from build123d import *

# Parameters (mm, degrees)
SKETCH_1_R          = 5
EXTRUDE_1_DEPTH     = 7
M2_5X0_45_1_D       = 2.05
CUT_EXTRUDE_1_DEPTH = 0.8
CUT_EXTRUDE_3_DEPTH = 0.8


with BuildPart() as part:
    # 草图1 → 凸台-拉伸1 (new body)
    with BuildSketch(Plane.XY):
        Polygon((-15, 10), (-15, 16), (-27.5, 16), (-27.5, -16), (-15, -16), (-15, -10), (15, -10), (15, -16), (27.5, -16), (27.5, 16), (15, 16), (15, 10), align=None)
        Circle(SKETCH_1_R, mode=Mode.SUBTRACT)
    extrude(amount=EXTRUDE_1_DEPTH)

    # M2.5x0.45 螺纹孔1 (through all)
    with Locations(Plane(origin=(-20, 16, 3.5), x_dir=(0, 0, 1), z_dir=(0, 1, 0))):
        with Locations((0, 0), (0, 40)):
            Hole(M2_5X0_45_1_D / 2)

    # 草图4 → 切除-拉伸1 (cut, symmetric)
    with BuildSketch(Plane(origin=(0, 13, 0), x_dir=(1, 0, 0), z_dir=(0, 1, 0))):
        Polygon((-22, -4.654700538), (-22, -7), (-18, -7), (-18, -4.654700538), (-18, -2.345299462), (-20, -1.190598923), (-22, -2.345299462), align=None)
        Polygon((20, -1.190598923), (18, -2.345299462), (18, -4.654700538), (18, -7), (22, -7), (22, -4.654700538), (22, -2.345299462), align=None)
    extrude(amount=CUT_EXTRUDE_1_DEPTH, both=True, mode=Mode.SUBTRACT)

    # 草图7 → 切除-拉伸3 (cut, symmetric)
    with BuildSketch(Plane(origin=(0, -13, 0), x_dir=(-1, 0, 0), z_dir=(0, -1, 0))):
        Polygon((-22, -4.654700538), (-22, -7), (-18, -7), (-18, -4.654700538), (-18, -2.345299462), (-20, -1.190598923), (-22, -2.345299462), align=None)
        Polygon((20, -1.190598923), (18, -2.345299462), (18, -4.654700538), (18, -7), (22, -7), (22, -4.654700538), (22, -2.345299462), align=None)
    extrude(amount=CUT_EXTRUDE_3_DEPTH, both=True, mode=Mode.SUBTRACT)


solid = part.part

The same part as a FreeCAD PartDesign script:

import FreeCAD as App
import Part
import Sketcher
Q = App.Units.Quantity

doc = App.newDocument("Part")
body = doc.addObject("PartDesign::Body", "Body")

sketch1 = doc.addObject("Sketcher::SketchObject", "Sketch")
body.addObject(sketch1)
sketch1.AttachmentSupport = (doc.XY_Plane, [""])
sketch1.MapMode = "FlatFace"
sketch1.addGeometry(Part.LineSegment(App.Vector(-15, 10, 0), App.Vector(-15, 16, 0)), False)
sketch1.addGeometry(Part.LineSegment(App.Vector(-15, 16, 0), App.Vector(-27.5, 16, 0)), False)
sketch1.addGeometry(Part.LineSegment(App.Vector(-27.5, 16, 0), App.Vector(-27.5, -16, 0)), False)
sketch1.addGeometry(Part.LineSegment(App.Vector(-27.5, -16, 0), App.Vector(-15, -16, 0)), False)
sketch1.addGeometry(Part.LineSegment(App.Vector(-15, -16, 0), App.Vector(-15, -10, 0)), False)
sketch1.addGeometry(Part.LineSegment(App.Vector(-15, -10, 0), App.Vector(15, -10, 0)), False)
sketch1.addGeometry(Part.LineSegment(App.Vector(15, -10, 0), App.Vector(15, -16, 0)), False)
sketch1.addGeometry(Part.LineSegment(App.Vector(15, -16, 0), App.Vector(27.5, -16, 0)), False)
sketch1.addGeometry(Part.LineSegment(App.Vector(27.5, -16, 0), App.Vector(27.5, 16, 0)), False)
sketch1.addGeometry(Part.LineSegment(App.Vector(27.5, 16, 0), App.Vector(15, 16, 0)), False)
sketch1.addGeometry(Part.LineSegment(App.Vector(15, 16, 0), App.Vector(15, 10, 0)), False)
sketch1.addGeometry(Part.LineSegment(App.Vector(15, 10, 0), App.Vector(-15, 10, 0)), False)
sketch1.addGeometry(Part.Circle(App.Vector(0, 0, 0), App.Vector(0, 0, 1), 5), False)
sketch1.addConstraint(Sketcher.Constraint("Coincident", 0, 2, 1, 1))
sketch1.addConstraint(Sketcher.Constraint("Coincident", 1, 2, 2, 1))
sketch1.addConstraint(Sketcher.Constraint("Coincident", 2, 2, 3, 1))
sketch1.addConstraint(Sketcher.Constraint("Coincident", 3, 2, 4, 1))
sketch1.addConstraint(Sketcher.Constraint("Coincident", 4, 2, 5, 1))
sketch1.addConstraint(Sketcher.Constraint("Coincident", 5, 2, 6, 1))
sketch1.addConstraint(Sketcher.Constraint("Coincident", 6, 2, 7, 1))
sketch1.addConstraint(Sketcher.Constraint("Coincident", 7, 2, 8, 1))
sketch1.addConstraint(Sketcher.Constraint("Coincident", 8, 2, 9, 1))
sketch1.addConstraint(Sketcher.Constraint("Coincident", 9, 2, 10, 1))
sketch1.addConstraint(Sketcher.Constraint("Coincident", 10, 2, 11, 1))
sketch1.addConstraint(Sketcher.Constraint("Coincident", 11, 2, 0, 1))
sketch1.addConstraint(Sketcher.Constraint("Vertical", 0))
sketch1.addConstraint(Sketcher.Constraint("Horizontal", 1))
sketch1.addConstraint(Sketcher.Constraint("Vertical", 2))
sketch1.addConstraint(Sketcher.Constraint("Horizontal", 3))
sketch1.addConstraint(Sketcher.Constraint("Vertical", 4))
sketch1.addConstraint(Sketcher.Constraint("Horizontal", 5))
sketch1.addConstraint(Sketcher.Constraint("Vertical", 6))
sketch1.addConstraint(Sketcher.Constraint("Horizontal", 7))
sketch1.addConstraint(Sketcher.Constraint("Vertical", 8))
sketch1.addConstraint(Sketcher.Constraint("Horizontal", 9))
sketch1.addConstraint(Sketcher.Constraint("Vertical", 10))
sketch1.addConstraint(Sketcher.Constraint("Horizontal", 11))
sketch1.addConstraint(Sketcher.Constraint("Coincident", 12, 3, -1, 1))
sketch1.addConstraint(Sketcher.Constraint("Symmetric", 0, 2, 6, 2, -1, 1))
sketch1.addConstraint(Sketcher.Constraint("Symmetric", 2, 2, 8, 2, -1, 1))
sketch1.addConstraint(Sketcher.Constraint("Symmetric", 4, 2, 10, 2, -1, 1))
sketch1.addConstraint(Sketcher.Constraint("Symmetric", 3, 2, 6, 2, -2))
sketch1.addConstraint(Sketcher.Constraint("Diameter", 12, Q("10 mm")))
sketch1.addConstraint(Sketcher.Constraint("DistanceX", 5, 1, 5, 2, Q("30 mm")))
sketch1.addConstraint(Sketcher.Constraint("DistanceY", 0, 1, 0, 2, Q("6 mm")))
sketch1.addConstraint(Sketcher.Constraint("DistanceY", 2, 2, 2, 1, Q("32 mm")))
sketch1.addConstraint(Sketcher.Constraint("DistanceX", 1, 2, 1, 1, Q("12.5 mm")))
pad1 = doc.addObject("PartDesign::Pad", "Pad")
body.addObject(pad1)
pad1.Profile = sketch1
pad1.Length = 7

sketch2 = doc.addObject("Sketcher::SketchObject", "Sketch001")
body.addObject(sketch2)
sketch2.AttachmentSupport = (doc.XZ_Plane, [""])
sketch2.MapMode = "FlatFace"
sketch2.AttachmentOffset = App.Placement(App.Vector(0, 0, -16), App.Rotation())
sketch2.addGeometry(Part.Circle(App.Vector(-20, 3.5, 0), App.Vector(0, 0, 1), 1.025), False)
sketch2.addGeometry(Part.Circle(App.Vector(20, 3.5, 0), App.Vector(0, 0, 1), 1.025), False)
sketch2.addConstraint(Sketcher.Constraint("Equal", 0, 1))
sketch2.addConstraint(Sketcher.Constraint("Symmetric", 0, 3, 1, 3, -2))
sketch2.addConstraint(Sketcher.Constraint("Diameter", 0, Q("2.05 mm")))
sketch2.addConstraint(Sketcher.Constraint("DistanceX", 0, 3, -1, 1, Q("20 mm")))
sketch2.addConstraint(Sketcher.Constraint("DistanceY", -1, 1, 0, 3, Q("3.5 mm")))
doc.recompute()
hole = doc.addObject("PartDesign::Hole", "Hole")
body.addObject(hole)
hole.Profile = sketch2
hole.ThreadType = "None"
hole.Diameter = 2.05
hole.DepthType = "ThroughAll"
hole.Reversed = True

sketch3 = doc.addObject("Sketcher::SketchObject", "Sketch002")
body.addObject(sketch3)
sketch3.AttachmentSupport = (doc.XZ_Plane, [""])
sketch3.MapMode = "FlatFace"
sketch3.AttachmentOffset = App.Placement(App.Vector(0, 0, -13), App.Rotation())
sketch3.addGeometry(Part.LineSegment(App.Vector(-22, 7, 0), App.Vector(-18, 7, 0)), False)
sketch3.addGeometry(Part.LineSegment(App.Vector(-18, 7, 0), App.Vector(-18, 2.345299, 0)), False)
sketch3.addGeometry(Part.LineSegment(App.Vector(-18, 2.345299, 0), App.Vector(-20, 1.190599, 0)), False)
sketch3.addGeometry(Part.LineSegment(App.Vector(-20, 1.190599, 0), App.Vector(-22, 2.345299, 0)), False)
sketch3.addGeometry(Part.LineSegment(App.Vector(-22, 2.345299, 0), App.Vector(-22, 7, 0)), False)
sketch3.addGeometry(Part.LineSegment(App.Vector(20, 1.190599, 0), App.Vector(18, 2.345299, 0)), False)
sketch3.addGeometry(Part.LineSegment(App.Vector(18, 2.345299, 0), App.Vector(18, 7, 0)), False)
sketch3.addGeometry(Part.LineSegment(App.Vector(18, 7, 0), App.Vector(22, 7, 0)), False)
sketch3.addGeometry(Part.LineSegment(App.Vector(22, 7, 0), App.Vector(22, 2.345299, 0)), False)
sketch3.addGeometry(Part.LineSegment(App.Vector(22, 2.345299, 0), App.Vector(20, 1.190599, 0)), False)
sketch3.addConstraint(Sketcher.Constraint("Coincident", 0, 2, 1, 1))
sketch3.addConstraint(Sketcher.Constraint("Coincident", 1, 2, 2, 1))
sketch3.addConstraint(Sketcher.Constraint("Coincident", 2, 2, 3, 1))
sketch3.addConstraint(Sketcher.Constraint("Coincident", 3, 2, 4, 1))
sketch3.addConstraint(Sketcher.Constraint("Coincident", 4, 2, 0, 1))
sketch3.addConstraint(Sketcher.Constraint("Coincident", 5, 2, 6, 1))
sketch3.addConstraint(Sketcher.Constraint("Coincident", 6, 2, 7, 1))
sketch3.addConstraint(Sketcher.Constraint("Coincident", 7, 2, 8, 1))
sketch3.addConstraint(Sketcher.Constraint("Coincident", 8, 2, 9, 1))
sketch3.addConstraint(Sketcher.Constraint("Coincident", 9, 2, 5, 1))
sketch3.addConstraint(Sketcher.Constraint("Horizontal", 0))
sketch3.addConstraint(Sketcher.Constraint("Vertical", 1))
sketch3.addConstraint(Sketcher.Constraint("Vertical", 4))
sketch3.addConstraint(Sketcher.Constraint("Vertical", 6))
sketch3.addConstraint(Sketcher.Constraint("Horizontal", 7))
sketch3.addConstraint(Sketcher.Constraint("Vertical", 8))
sketch3.addConstraint(Sketcher.Constraint("Symmetric", 1, 2, 5, 2, -2))
sketch3.addConstraint(Sketcher.Constraint("Symmetric", 4, 2, 7, 2, -2))
sketch3.addConstraint(Sketcher.Constraint("Symmetric", 2, 2, 9, 2, -2))
sketch3.addConstraint(Sketcher.Constraint("Parallel", 3, 5))
sketch3.addConstraint(Sketcher.Constraint("Parallel", 2, 9))
sketch3.addConstraint(Sketcher.Constraint("Horizontal", 1, 2, 3, 2))
sketch3.addConstraint(Sketcher.Constraint("DistanceX", 0, 1, 0, 2, Q("4 mm")))
sketch3.addConstraint(Sketcher.Constraint("Angle", 2, Q("-150 deg")))
sketch3.addConstraint(Sketcher.Constraint("DistanceX", 0, 2, -1, 1, Q("18 mm")))
sketch3.addConstraint(Sketcher.Constraint("DistanceY", -1, 1, 0, 2, Q("7 mm")))
sketch3.addConstraint(Sketcher.Constraint("DistanceY", 1, 2, 1, 1, Q("4.654701 mm")))
pocket1 = doc.addObject("PartDesign::Pocket", "Pocket")
body.addObject(pocket1)
pocket1.Profile = sketch3
pocket1.Length = 1.6
pocket1.Midplane = True

sketch4 = doc.addObject("Sketcher::SketchObject", "Sketch003")
body.addObject(sketch4)
sketch4.AttachmentSupport = (doc.XZ_Plane, [""])
sketch4.MapMode = "FlatFace"
sketch4.AttachmentOffset = App.Placement(App.Vector(0, 0, 13), App.Rotation())
sketch4.addGeometry(Part.LineSegment(App.Vector(22, 7, 0), App.Vector(18, 7, 0)), False)
sketch4.addGeometry(Part.LineSegment(App.Vector(18, 7, 0), App.Vector(18, 2.345299, 0)), False)
sketch4.addGeometry(Part.LineSegment(App.Vector(18, 2.345299, 0), App.Vector(20, 1.190599, 0)), False)
sketch4.addGeometry(Part.LineSegment(App.Vector(20, 1.190599, 0), App.Vector(22, 2.345299, 0)), False)
sketch4.addGeometry(Part.LineSegment(App.Vector(22, 2.345299, 0), App.Vector(22, 7, 0)), False)
sketch4.addGeometry(Part.LineSegment(App.Vector(-20, 1.190599, 0), App.Vector(-18, 2.345299, 0)), False)
sketch4.addGeometry(Part.LineSegment(App.Vector(-18, 2.345299, 0), App.Vector(-18, 7, 0)), False)
sketch4.addGeometry(Part.LineSegment(App.Vector(-18, 7, 0), App.Vector(-22, 7, 0)), False)
sketch4.addGeometry(Part.LineSegment(App.Vector(-22, 7, 0), App.Vector(-22, 2.345299, 0)), False)
sketch4.addGeometry(Part.LineSegment(App.Vector(-22, 2.345299, 0), App.Vector(-20, 1.190599, 0)), False)
sketch4.addConstraint(Sketcher.Constraint("Coincident", 0, 2, 1, 1))
sketch4.addConstraint(Sketcher.Constraint("Coincident", 1, 2, 2, 1))
sketch4.addConstraint(Sketcher.Constraint("Coincident", 2, 2, 3, 1))
sketch4.addConstraint(Sketcher.Constraint("Coincident", 3, 2, 4, 1))
sketch4.addConstraint(Sketcher.Constraint("Coincident", 4, 2, 0, 1))
sketch4.addConstraint(Sketcher.Constraint("Coincident", 5, 2, 6, 1))
sketch4.addConstraint(Sketcher.Constraint("Coincident", 6, 2, 7, 1))
sketch4.addConstraint(Sketcher.Constraint("Coincident", 7, 2, 8, 1))
sketch4.addConstraint(Sketcher.Constraint("Coincident", 8, 2, 9, 1))
sketch4.addConstraint(Sketcher.Constraint("Coincident", 9, 2, 5, 1))
sketch4.addConstraint(Sketcher.Constraint("Horizontal", 0))
sketch4.addConstraint(Sketcher.Constraint("Vertical", 1))
sketch4.addConstraint(Sketcher.Constraint("Vertical", 4))
sketch4.addConstraint(Sketcher.Constraint("Vertical", 6))
sketch4.addConstraint(Sketcher.Constraint("Horizontal", 7))
sketch4.addConstraint(Sketcher.Constraint("Vertical", 8))
sketch4.addConstraint(Sketcher.Constraint("Symmetric", 1, 2, 5, 2, -2))
sketch4.addConstraint(Sketcher.Constraint("Symmetric", 4, 2, 7, 2, -2))
sketch4.addConstraint(Sketcher.Constraint("Symmetric", 2, 2, 9, 2, -2))
sketch4.addConstraint(Sketcher.Constraint("Parallel", 3, 5))
sketch4.addConstraint(Sketcher.Constraint("Parallel", 2, 9))
sketch4.addConstraint(Sketcher.Constraint("Horizontal", 1, 2, 3, 2))
sketch4.addConstraint(Sketcher.Constraint("DistanceX", 0, 2, 0, 1, Q("4 mm")))
sketch4.addConstraint(Sketcher.Constraint("Angle", 2, Q("-30 deg")))
sketch4.addConstraint(Sketcher.Constraint("DistanceX", -1, 1, 0, 2, Q("18 mm")))
sketch4.addConstraint(Sketcher.Constraint("DistanceY", -1, 1, 0, 2, Q("7 mm")))
sketch4.addConstraint(Sketcher.Constraint("DistanceY", 1, 2, 1, 1, Q("4.654701 mm")))
pocket2 = doc.addObject("PartDesign::Pocket", "Pocket001")
body.addObject(pocket2)
pocket2.Profile = sketch4
pocket2.Length = 1.6
pocket2.Midplane = True

doc.recompute()
